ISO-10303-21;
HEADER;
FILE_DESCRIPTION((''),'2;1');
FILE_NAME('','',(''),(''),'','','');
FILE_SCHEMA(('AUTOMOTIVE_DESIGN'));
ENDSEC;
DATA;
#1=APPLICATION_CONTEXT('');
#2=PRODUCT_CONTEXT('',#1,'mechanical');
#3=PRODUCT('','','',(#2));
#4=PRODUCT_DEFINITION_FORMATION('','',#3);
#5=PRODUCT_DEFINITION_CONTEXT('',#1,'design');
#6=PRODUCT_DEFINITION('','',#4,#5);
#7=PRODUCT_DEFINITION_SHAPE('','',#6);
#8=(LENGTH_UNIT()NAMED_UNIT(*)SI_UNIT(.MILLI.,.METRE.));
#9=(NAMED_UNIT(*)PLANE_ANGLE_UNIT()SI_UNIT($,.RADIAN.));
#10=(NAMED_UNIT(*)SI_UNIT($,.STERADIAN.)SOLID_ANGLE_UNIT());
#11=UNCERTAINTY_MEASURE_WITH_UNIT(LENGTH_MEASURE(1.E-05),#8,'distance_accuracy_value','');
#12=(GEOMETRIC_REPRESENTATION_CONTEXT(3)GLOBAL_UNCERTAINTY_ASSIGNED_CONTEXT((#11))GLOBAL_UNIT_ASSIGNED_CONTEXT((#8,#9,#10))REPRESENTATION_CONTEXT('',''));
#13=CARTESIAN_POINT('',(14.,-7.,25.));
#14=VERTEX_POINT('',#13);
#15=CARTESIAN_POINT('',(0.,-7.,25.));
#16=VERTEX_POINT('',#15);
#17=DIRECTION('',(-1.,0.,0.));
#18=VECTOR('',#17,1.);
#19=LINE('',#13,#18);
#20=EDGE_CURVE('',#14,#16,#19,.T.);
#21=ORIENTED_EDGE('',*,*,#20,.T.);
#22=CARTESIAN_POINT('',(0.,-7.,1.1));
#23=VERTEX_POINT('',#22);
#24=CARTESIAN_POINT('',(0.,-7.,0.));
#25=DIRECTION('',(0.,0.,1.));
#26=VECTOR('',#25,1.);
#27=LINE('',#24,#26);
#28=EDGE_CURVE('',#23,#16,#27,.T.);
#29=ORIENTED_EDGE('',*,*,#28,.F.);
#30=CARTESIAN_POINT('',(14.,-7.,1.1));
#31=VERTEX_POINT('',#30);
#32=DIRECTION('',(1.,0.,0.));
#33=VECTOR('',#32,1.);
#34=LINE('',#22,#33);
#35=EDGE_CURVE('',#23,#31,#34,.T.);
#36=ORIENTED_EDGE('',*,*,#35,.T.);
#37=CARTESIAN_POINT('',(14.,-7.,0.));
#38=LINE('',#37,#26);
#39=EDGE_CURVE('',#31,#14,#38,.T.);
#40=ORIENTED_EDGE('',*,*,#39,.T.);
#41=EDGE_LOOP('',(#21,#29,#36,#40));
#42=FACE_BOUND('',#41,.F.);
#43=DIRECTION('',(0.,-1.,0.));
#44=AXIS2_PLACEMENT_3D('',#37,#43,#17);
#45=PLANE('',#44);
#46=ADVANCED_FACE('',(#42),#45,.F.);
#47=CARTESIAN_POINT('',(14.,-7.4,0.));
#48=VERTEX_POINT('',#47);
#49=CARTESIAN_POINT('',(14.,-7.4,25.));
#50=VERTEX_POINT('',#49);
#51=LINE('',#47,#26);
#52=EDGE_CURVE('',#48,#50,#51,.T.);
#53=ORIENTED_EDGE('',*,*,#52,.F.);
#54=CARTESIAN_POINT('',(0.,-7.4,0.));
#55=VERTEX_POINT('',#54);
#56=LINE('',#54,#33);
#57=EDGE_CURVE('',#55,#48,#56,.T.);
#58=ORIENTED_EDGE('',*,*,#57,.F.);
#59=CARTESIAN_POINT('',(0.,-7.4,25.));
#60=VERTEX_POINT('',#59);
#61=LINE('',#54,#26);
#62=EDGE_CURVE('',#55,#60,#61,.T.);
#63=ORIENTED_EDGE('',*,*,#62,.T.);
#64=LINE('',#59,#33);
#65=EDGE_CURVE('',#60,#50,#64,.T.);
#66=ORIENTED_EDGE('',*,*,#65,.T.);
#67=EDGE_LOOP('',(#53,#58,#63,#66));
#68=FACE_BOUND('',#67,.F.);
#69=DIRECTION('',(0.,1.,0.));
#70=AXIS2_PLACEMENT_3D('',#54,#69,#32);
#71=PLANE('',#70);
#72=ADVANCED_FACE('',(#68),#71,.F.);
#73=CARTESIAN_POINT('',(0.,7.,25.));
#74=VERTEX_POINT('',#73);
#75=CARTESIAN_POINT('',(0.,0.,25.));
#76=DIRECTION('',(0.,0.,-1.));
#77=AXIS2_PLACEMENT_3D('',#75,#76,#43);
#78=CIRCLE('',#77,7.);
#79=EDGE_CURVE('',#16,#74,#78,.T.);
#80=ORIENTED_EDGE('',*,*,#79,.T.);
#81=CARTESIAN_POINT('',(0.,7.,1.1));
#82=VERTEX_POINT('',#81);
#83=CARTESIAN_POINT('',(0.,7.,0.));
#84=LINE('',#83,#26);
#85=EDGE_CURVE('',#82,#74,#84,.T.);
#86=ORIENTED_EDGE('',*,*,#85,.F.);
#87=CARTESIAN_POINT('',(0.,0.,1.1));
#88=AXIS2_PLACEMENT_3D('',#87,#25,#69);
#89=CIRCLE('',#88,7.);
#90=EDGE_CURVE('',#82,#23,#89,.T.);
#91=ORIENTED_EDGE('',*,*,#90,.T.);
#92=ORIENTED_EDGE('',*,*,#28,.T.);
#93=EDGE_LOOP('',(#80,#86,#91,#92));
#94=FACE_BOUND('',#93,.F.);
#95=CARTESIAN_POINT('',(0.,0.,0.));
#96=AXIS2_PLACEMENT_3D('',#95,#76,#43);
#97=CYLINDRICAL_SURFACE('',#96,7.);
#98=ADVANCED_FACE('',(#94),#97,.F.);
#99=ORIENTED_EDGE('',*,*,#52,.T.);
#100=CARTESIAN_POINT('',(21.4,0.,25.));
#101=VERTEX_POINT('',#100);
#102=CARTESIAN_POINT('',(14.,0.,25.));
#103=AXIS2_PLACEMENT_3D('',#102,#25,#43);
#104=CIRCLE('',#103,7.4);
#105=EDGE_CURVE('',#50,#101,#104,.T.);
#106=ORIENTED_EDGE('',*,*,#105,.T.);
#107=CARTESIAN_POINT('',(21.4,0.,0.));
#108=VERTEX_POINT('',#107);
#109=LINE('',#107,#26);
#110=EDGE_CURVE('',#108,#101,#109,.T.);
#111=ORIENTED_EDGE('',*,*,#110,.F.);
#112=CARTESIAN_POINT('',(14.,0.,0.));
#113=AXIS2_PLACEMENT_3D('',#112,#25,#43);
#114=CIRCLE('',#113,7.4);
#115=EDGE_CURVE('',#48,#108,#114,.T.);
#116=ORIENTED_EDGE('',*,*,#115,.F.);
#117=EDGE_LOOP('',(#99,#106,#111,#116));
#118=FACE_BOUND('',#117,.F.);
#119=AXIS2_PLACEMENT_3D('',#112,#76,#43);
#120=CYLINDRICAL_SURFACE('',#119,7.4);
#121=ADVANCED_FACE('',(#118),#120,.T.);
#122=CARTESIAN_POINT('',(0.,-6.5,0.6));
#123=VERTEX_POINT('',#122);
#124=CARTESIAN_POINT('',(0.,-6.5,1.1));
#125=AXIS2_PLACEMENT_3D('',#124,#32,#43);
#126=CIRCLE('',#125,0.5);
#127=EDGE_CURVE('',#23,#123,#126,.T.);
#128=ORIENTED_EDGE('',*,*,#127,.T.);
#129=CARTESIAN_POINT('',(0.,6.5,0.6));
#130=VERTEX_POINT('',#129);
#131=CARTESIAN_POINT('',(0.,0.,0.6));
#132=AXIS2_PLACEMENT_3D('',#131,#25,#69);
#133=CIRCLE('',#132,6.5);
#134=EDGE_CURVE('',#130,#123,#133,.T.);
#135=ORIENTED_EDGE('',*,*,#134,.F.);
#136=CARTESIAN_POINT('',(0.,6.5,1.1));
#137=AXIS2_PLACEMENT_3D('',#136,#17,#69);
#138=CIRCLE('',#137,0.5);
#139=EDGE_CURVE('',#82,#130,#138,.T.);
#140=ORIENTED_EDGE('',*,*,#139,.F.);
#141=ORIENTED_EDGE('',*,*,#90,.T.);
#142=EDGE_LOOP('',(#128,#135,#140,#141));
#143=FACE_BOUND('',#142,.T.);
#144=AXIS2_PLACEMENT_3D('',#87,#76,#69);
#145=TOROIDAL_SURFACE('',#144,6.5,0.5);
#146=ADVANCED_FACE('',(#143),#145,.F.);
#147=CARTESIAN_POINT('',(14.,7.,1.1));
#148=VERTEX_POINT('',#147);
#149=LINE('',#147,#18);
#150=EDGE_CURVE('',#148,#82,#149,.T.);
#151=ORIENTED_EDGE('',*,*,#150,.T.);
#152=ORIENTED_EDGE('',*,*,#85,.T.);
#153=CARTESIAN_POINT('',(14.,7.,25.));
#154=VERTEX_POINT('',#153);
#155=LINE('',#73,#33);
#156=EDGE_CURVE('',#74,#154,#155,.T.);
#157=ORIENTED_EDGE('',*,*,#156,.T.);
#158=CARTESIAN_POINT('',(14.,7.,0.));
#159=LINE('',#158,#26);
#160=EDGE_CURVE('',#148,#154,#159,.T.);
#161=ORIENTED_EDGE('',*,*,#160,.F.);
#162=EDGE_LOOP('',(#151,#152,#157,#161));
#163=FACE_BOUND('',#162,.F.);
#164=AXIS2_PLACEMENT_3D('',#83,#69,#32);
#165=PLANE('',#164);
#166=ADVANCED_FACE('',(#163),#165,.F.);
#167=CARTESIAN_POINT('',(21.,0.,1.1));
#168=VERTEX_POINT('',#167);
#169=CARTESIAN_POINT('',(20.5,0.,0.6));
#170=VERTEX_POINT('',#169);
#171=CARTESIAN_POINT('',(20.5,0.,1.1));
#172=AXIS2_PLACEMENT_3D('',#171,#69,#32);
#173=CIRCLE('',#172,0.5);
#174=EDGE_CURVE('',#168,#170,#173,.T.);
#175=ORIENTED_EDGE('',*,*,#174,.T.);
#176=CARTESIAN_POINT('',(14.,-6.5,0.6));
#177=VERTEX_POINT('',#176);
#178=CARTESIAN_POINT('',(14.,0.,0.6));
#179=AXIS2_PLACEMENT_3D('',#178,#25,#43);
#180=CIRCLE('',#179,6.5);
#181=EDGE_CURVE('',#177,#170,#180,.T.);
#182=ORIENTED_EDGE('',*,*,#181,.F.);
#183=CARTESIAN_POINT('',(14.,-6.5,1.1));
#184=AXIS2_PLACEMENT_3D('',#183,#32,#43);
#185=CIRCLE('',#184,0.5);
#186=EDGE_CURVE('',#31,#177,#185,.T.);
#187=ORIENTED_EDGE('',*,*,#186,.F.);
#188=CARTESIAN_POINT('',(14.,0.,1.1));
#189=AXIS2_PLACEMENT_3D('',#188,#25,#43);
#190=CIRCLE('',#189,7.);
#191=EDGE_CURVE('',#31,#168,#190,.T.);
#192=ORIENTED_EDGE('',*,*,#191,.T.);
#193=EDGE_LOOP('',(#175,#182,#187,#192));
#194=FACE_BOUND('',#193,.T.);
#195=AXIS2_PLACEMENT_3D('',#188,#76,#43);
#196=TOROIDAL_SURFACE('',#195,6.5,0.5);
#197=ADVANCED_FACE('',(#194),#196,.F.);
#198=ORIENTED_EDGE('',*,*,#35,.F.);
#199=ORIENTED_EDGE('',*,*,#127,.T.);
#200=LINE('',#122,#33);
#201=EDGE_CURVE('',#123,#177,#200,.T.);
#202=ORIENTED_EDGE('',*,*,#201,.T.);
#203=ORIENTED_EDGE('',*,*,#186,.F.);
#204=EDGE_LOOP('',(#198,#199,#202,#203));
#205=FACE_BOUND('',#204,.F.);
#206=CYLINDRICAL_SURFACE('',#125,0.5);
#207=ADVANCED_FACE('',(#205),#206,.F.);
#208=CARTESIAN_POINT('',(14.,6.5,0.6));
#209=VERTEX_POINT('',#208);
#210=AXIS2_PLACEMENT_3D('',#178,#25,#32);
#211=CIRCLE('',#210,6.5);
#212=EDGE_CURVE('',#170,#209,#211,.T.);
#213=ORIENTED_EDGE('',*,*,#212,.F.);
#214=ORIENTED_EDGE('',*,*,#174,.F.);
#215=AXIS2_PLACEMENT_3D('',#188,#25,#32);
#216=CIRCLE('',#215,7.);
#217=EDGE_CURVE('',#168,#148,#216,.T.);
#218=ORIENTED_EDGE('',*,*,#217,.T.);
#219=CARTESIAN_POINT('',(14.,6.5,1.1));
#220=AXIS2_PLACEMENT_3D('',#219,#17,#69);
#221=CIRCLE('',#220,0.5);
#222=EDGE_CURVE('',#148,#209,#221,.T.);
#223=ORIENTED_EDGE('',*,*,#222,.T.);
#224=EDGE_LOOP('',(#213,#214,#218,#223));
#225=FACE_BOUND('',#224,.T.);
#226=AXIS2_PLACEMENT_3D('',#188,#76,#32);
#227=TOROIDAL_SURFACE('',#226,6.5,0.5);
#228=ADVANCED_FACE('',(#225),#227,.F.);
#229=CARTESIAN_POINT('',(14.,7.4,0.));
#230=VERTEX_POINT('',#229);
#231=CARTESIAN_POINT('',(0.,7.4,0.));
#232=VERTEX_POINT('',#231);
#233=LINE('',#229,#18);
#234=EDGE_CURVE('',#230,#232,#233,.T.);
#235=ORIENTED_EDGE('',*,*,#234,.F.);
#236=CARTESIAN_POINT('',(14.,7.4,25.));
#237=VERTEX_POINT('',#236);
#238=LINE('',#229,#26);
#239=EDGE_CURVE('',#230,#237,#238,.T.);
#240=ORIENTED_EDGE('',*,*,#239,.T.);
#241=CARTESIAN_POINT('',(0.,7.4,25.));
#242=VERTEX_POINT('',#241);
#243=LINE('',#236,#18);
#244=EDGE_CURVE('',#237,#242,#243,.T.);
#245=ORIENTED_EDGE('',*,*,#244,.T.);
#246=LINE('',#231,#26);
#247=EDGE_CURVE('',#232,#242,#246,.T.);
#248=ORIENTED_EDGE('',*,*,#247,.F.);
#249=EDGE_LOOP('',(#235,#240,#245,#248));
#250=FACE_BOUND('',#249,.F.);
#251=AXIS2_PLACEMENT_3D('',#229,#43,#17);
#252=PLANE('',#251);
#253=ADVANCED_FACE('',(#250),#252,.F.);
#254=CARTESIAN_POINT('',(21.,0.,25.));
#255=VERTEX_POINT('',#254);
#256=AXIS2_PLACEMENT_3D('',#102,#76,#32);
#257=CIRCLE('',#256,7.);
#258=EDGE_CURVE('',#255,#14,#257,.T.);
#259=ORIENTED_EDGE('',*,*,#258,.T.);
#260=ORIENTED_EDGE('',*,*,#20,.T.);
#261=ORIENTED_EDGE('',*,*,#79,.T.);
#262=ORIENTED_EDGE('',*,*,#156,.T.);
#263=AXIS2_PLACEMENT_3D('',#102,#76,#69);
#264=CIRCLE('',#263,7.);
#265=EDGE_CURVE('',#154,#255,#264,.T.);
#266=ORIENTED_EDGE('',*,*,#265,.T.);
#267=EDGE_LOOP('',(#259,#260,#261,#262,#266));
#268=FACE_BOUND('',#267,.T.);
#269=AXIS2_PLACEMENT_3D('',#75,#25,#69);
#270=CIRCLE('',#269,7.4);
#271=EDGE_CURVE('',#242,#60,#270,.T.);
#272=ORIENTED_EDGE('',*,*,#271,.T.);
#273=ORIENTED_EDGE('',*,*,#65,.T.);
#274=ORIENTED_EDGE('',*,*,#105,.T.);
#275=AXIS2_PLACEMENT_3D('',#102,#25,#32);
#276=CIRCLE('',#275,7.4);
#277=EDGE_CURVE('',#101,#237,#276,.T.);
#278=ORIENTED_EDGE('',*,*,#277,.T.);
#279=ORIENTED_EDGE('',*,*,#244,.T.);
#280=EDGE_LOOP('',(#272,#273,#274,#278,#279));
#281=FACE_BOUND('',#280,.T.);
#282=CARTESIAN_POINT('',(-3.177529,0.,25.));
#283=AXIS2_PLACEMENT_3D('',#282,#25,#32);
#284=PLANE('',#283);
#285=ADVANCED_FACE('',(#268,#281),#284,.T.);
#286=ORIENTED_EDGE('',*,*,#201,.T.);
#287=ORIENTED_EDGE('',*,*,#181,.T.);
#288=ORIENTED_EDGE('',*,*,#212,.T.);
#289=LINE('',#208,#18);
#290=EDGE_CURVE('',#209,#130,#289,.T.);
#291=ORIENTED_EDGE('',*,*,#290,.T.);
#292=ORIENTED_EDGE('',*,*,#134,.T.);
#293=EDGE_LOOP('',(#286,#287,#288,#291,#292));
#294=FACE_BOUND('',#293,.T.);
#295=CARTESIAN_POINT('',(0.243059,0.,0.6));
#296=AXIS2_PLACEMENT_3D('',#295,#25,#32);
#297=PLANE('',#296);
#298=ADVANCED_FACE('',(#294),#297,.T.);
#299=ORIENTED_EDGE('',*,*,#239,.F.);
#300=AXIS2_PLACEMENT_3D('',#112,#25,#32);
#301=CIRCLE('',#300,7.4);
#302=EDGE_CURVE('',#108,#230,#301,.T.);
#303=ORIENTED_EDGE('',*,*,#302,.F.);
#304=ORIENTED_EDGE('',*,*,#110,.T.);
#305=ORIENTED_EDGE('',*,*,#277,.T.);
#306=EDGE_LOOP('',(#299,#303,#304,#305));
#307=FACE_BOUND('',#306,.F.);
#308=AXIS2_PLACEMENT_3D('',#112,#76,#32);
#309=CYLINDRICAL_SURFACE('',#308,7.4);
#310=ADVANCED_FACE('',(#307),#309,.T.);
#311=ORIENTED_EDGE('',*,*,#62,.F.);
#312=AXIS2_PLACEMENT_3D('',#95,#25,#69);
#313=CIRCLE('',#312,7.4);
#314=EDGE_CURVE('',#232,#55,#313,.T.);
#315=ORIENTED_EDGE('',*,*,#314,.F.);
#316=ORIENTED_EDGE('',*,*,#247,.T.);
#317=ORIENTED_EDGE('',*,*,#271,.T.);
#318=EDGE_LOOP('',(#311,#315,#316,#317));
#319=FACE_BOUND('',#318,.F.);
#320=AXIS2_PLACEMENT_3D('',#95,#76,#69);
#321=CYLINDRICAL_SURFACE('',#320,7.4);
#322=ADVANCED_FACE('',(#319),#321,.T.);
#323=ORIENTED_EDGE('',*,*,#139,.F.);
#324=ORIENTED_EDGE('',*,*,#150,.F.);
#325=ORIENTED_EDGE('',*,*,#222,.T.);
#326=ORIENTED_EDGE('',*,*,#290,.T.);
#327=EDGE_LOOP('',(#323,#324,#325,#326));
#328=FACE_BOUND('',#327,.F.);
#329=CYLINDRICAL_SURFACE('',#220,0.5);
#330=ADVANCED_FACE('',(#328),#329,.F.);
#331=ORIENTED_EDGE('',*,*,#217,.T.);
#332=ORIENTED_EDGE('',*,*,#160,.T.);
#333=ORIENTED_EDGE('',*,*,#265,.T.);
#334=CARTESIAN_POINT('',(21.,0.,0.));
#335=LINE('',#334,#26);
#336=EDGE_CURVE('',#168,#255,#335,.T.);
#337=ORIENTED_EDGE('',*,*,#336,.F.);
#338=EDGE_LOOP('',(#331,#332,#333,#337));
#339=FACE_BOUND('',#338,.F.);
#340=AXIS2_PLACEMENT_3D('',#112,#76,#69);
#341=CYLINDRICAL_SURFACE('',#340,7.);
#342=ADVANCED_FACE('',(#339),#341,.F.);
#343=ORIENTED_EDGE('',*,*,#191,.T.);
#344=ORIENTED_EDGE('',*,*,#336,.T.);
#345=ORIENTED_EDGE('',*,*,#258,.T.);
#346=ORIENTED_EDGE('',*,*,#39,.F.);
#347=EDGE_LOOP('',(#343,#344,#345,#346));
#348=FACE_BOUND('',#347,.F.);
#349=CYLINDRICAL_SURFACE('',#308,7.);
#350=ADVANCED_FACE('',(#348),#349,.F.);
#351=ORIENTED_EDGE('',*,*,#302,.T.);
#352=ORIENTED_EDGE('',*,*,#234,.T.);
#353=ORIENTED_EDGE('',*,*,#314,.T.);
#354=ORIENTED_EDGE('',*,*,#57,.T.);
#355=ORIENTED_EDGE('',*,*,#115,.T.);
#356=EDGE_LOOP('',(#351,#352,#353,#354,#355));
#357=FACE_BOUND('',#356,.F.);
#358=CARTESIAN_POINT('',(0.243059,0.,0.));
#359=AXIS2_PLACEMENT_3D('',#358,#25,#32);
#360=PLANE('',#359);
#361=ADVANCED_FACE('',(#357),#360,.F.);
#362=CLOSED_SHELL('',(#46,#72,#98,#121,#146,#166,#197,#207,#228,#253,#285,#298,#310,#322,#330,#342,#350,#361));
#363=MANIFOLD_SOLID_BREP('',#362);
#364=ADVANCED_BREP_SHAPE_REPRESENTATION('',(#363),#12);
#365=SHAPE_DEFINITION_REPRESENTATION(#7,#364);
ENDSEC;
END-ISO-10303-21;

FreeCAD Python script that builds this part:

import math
import FreeCAD as App
import Part
import Sketcher
from FreeCAD import Vector
Q = App.Units.Quantity


def edges_at(feature, points):
    """Names of the edges that pass closest to the given points."""
    edges = feature.Shape.Edges
    near = lambda p: min(range(len(edges)), key=lambda i: edges[i].distToShape(Part.Vertex(*p))[0])
    return sorted({f"Edge{near(p) + 1}" for p in points})

doc = App.newDocument("Part")
body = doc.addObject("PartDesign::Body", "Body")

# Sketch on XY plane
sketch1 = body.newObject("Sketcher::SketchObject", "Sketch")
sketch1.AttachmentSupport = (doc.getObject("XY_Plane"), [""])
sketch1.MapMode = "FlatFace"
sketch1.addGeometry([
    Part.ArcOfCircle(Part.Circle(Vector(14, 0, 0), Vector(0, 0, 1), 7), math.radians(-90), math.radians(0)),  # 0
    Part.ArcOfCircle(Part.Circle(Vector(14, 0, 0), Vector(0, 0, 1), 7), math.radians(0), math.radians(90)),  # 1
    Part.LineSegment(Vector(14, 7, 0), Vector(0, 7, 0)),  # 2
    Part.ArcOfCircle(Part.Circle(Vector(0, 0, 0), Vector(0, 0, 1), 7), math.radians(90), math.radians(270)),  # 3
    Part.LineSegment(Vector(0, -7, 0), Vector(14, -7, 0)),  # 4
    Part.ArcOfCircle(Part.Circle(Vector(0, 0, 0), Vector(0, 0, 1), 7), math.radians(90), math.radians(270)),  # 5
    Part.LineSegment(Vector(0, 7, 0), Vector(14, 7, 0)),  # 6
    Part.ArcOfCircle(Part.Circle(Vector(14, 0, 0), Vector(0, 0, 1), 7), math.radians(0), math.radians(90)),  # 7
    Part.ArcOfCircle(Part.Circle(Vector(14, 0, 0), Vector(0, 0, 1), 7), math.radians(-90), math.radians(0)),  # 8
    Part.LineSegment(Vector(14, -7, 0), Vector(0, -7, 0)),  # 9
], False)
sketch1.addConstraint([
    Sketcher.Constraint("Tangent", 0, 2, 1, 1),
    Sketcher.Constraint("Tangent", 1, 2, 2, 1),
    Sketcher.Constraint("Tangent", 2, 2, 3, 1),
    Sketcher.Constraint("Tangent", 3, 2, 4, 1),
    Sketcher.Constraint("Tangent", 4, 2, 0, 1),
    Sketcher.Constraint("Tangent", 5, 1, 6, 1),
    Sketcher.Constraint("Tangent", 6, 2, 7, 2),
    Sketcher.Constraint("Tangent", 7, 1, 8, 2),
    Sketcher.Constraint("Tangent", 8, 1, 9, 1),
    Sketcher.Constraint("Tangent", 9, 2, 5, 2),
    Sketcher.Constraint("Horizontal", 2),
    Sketcher.Constraint("Horizontal", 4),
    Sketcher.Constraint("Horizontal", 6),
    Sketcher.Constraint("Horizontal", 9),
    Sketcher.Constraint("Coincident", 3, 3, -1, 1),
    Sketcher.Constraint("Coincident", 5, 3, -1, 1),
    Sketcher.Constraint("Coincident", 7, 3, 0, 3),
    Sketcher.Constraint("Equal", 0, 1),
    Sketcher.Constraint("PointOnObject", 0, 2, -1),
    Sketcher.Constraint("PointOnObject", 7, 1, -1),
    Sketcher.Constraint("Radius", 5, Q("7 mm")),
    Sketcher.Constraint("Radius", 0, Q("7.4 mm")),
    Sketcher.Constraint("DistanceX", 2, 2, 2, 1, Q("14 mm")),
])
pad1 = body.newObject("PartDesign::Pad", "Pad")
pad1.Profile = sketch1
pad1.Length = 25

# Sketch on XY plane
sketch2 = body.newObject("Sketcher::SketchObject", "Sketch001")
sketch2.AttachmentSupport = (doc.getObject("XY_Plane"), [""])
sketch2.MapMode = "FlatFace"
sketch2.addGeometry([
    Part.ArcOfCircle(Part.Circle(Vector(0, 0, 0), Vector(0, 0, 1), 7), math.radians(90), math.radians(270)),  # 0
    Part.LineSegment(Vector(0, -7, 0), Vector(14, -7, 0)),  # 1
    Part.ArcOfCircle(Part.Circle(Vector(14, 0, 0), Vector(0, 0, 1), 7), math.radians(-90), math.radians(0)),  # 2
    Part.ArcOfCircle(Part.Circle(Vector(14, 0, 0), Vector(0, 0, 1), 7), math.radians(0), math.radians(90)),  # 3
    Part.LineSegment(Vector(14, 7, 0), Vector(0, 7, 0)),  # 4
], False)
sketch2.addConstraint([
    Sketcher.Constraint("Tangent", 0, 2, 1, 1),
    Sketcher.Constraint("Tangent", 1, 2, 2, 1),
    Sketcher.Constraint("Tangent", 2, 2, 3, 1),
    Sketcher.Constraint("Tangent", 3, 2, 4, 1),
    Sketcher.Constraint("Tangent", 4, 2, 0, 1),
    Sketcher.Constraint("Horizontal", 1),
    Sketcher.Constraint("Horizontal", 4),
    Sketcher.Constraint("Coincident", 0, 3, -1, 1),
    Sketcher.Constraint("Equal", 0, 2),
    Sketcher.Constraint("PointOnObject", 2, 2, -1),
    Sketcher.Constraint("Radius", 0, Q("7 mm")),
    Sketcher.Constraint("DistanceX", 1, 1, 1, 2, Q("14 mm")),
])
pad2 = body.newObject("PartDesign::Pad", "Pad001")
pad2.Profile = sketch2
pad2.Length = 0.6
doc.recompute()

fillet = body.newObject("PartDesign::Fillet", "Fillet")
fillet.Base = (pad2, edges_at(pad2, [
    (-7, 0, 0.6),
    (7, -7, 0.6),
    (18.95, 4.95, 0.6),
    (7, 7, 0.6),
]))
fillet.Radius = 0.5

doc.recompute()
